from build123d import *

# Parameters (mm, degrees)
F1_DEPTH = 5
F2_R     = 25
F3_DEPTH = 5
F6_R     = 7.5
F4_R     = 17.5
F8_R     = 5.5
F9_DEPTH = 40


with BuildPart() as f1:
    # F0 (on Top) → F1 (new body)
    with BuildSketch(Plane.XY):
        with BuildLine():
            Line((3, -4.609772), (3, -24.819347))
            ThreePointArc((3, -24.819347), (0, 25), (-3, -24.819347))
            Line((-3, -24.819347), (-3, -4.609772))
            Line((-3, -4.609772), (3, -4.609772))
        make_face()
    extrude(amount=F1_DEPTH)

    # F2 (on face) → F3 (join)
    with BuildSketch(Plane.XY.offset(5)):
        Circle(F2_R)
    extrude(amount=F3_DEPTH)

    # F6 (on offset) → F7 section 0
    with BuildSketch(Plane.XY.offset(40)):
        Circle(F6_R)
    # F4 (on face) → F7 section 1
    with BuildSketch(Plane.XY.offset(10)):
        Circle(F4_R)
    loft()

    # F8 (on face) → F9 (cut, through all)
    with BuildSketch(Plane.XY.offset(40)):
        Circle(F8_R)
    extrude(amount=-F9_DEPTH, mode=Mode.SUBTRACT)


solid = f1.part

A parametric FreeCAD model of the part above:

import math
import FreeCAD as App
import Part
import Sketcher
from FreeCAD import Vector

doc = App.newDocument("Part")
body = doc.addObject("PartDesign::Body", "Body")

# Sketch on XY plane
sketch1 = doc.addObject("Sketcher::SketchObject", "Sketch")
body.addObject(sketch1)
sketch1.AttachmentSupport = (doc.XY_Plane, [""])
sketch1.MapMode = "FlatFace"
sketch1.addGeometry(Part.LineSegment(Vector(3, -5, 0), Vector(3, -25, 0)), False)
sketch1.addGeometry(Part.ArcOfCircle(Part.Circle(Vector(0, 0, 0), Vector(0, 0, 1), 25), math.radians(-83), math.radians(263)), False)
sketch1.addGeometry(Part.LineSegment(Vector(-3, -25, 0), Vector(-3, -5, 0)), False)
sketch1.addGeometry(Part.LineSegment(Vector(-3, -5, 0), Vector(3, -5, 0)), False)
sketch1.addConstraint(Sketcher.Constraint("Coincident", 0, 2, 1, 1))
sketch1.addConstraint(Sketcher.Constraint("Coincident", 1, 2, 2, 1))
sketch1.addConstraint(Sketcher.Constraint("Coincident", 2, 2, 3, 1))
sketch1.addConstraint(Sketcher.Constraint("Coincident", 3, 2, 0, 1))
sketch1.addConstraint(Sketcher.Constraint("Vertical", 0))
sketch1.addConstraint(Sketcher.Constraint("Vertical", 2))
sketch1.addConstraint(Sketcher.Constraint("Horizontal", 3))
sketch1.addConstraint(Sketcher.Constraint("Coincident", 1, 3, -1, 1))
sketch1.addConstraint(Sketcher.Constraint("Horizontal", 0, 2, 1, 2))
sketch1.addConstraint(Sketcher.Constraint("Radius", 1, 25.0))
sketch1.addConstraint(Sketcher.Constraint("DistanceX", 3, 1, 3, 2, 6.0))
sketch1.addConstraint(Sketcher.Constraint("DistanceY", 0, 2, 0, 1, 20.209575))
pad1 = doc.addObject("PartDesign::Pad", "Pad")
body.addObject(pad1)
pad1.Profile = sketch1
pad1.Length = 5

# Sketch on XY plane
sketch2 = doc.addObject("Sketcher::SketchObject", "Sketch001")
body.addObject(sketch2)
sketch2.AttachmentSupport = (doc.XY_Plane, [""])
sketch2.MapMode = "FlatFace"
sketch2.AttachmentOffset = App.Placement(Vector(0, 0, 5), App.Rotation())
sketch2.addGeometry(Part.Circle(Vector(0, 0, 0), Vector(0, 0, 1), 25), False)
sketch2.addConstraint(Sketcher.Constraint("Coincident", 0, 3, -1, 1))
sketch2.addConstraint(Sketcher.Constraint("Diameter", 0, 50.0))
pad2 = doc.addObject("PartDesign::Pad", "Pad001")
body.addObject(pad2)
pad2.Profile = sketch2
pad2.Length = 5

# Sketch on XY plane
sketch3 = doc.addObject("Sketcher::SketchObject", "Sketch002")
body.addObject(sketch3)
sketch3.AttachmentSupport = (doc.XY_Plane, [""])
sketch3.MapMode = "FlatFace"
sketch3.AttachmentOffset = App.Placement(Vector(0, 0, 40), App.Rotation())
sketch3.addGeometry(Part.Circle(Vector(0, 0, 0), Vector(0, 0, 1), 8), False)
sketch3.addConstraint(Sketcher.Constraint("Coincident", 0, 3, -1, 1))
sketch3.addConstraint(Sketcher.Constraint("Diameter", 0, 15.0))

# Sketch on XY plane
sketch4 = doc.addObject("Sketcher::SketchObject", "Sketch003")
body.addObject(sketch4)
sketch4.AttachmentSupport = (doc.XY_Plane, [""])
sketch4.MapMode = "FlatFace"
sketch4.AttachmentOffset = App.Placement(Vector(0, 0, 10), App.Rotation())
sketch4.addGeometry(Part.Circle(Vector(0, 0, 0), Vector(0, 0, 1), 18), False)
sketch4.addConstraint(Sketcher.Constraint("Coincident", 0, 3, -1, 1))
sketch4.addConstraint(Sketcher.Constraint("Diameter", 0, 35.0))

additiveloft = doc.addObject("PartDesign::AdditiveLoft", "AdditiveLoft")
body.addObject(additiveloft)
additiveloft.Profile = sketch3
additiveloft.Sections = [sketch4]

# Sketch on XY plane
sketch5 = doc.addObject("Sketcher::SketchObject", "Sketch004")
body.addObject(sketch5)
sketch5.AttachmentSupport = (doc.XY_Plane, [""])
sketch5.MapMode = "FlatFace"
sketch5.AttachmentOffset = App.Placement(Vector(0, 0, 40), App.Rotation())
sketch5.addGeometry(Part.Circle(Vector(0, 0, 0), Vector(0, 0, 1), 6), False)
sketch5.addConstraint(Sketcher.Constraint("Coincident", 0, 3, -1, 1))
sketch5.addConstraint(Sketcher.Constraint("Diameter", 0, 11.0))
pocket1 = doc.addObject("PartDesign::Pocket", "Pocket")
body.addObject(pocket1)
pocket1.Profile = sketch5
pocket1.Type = "ThroughAll"

doc.recompute()
